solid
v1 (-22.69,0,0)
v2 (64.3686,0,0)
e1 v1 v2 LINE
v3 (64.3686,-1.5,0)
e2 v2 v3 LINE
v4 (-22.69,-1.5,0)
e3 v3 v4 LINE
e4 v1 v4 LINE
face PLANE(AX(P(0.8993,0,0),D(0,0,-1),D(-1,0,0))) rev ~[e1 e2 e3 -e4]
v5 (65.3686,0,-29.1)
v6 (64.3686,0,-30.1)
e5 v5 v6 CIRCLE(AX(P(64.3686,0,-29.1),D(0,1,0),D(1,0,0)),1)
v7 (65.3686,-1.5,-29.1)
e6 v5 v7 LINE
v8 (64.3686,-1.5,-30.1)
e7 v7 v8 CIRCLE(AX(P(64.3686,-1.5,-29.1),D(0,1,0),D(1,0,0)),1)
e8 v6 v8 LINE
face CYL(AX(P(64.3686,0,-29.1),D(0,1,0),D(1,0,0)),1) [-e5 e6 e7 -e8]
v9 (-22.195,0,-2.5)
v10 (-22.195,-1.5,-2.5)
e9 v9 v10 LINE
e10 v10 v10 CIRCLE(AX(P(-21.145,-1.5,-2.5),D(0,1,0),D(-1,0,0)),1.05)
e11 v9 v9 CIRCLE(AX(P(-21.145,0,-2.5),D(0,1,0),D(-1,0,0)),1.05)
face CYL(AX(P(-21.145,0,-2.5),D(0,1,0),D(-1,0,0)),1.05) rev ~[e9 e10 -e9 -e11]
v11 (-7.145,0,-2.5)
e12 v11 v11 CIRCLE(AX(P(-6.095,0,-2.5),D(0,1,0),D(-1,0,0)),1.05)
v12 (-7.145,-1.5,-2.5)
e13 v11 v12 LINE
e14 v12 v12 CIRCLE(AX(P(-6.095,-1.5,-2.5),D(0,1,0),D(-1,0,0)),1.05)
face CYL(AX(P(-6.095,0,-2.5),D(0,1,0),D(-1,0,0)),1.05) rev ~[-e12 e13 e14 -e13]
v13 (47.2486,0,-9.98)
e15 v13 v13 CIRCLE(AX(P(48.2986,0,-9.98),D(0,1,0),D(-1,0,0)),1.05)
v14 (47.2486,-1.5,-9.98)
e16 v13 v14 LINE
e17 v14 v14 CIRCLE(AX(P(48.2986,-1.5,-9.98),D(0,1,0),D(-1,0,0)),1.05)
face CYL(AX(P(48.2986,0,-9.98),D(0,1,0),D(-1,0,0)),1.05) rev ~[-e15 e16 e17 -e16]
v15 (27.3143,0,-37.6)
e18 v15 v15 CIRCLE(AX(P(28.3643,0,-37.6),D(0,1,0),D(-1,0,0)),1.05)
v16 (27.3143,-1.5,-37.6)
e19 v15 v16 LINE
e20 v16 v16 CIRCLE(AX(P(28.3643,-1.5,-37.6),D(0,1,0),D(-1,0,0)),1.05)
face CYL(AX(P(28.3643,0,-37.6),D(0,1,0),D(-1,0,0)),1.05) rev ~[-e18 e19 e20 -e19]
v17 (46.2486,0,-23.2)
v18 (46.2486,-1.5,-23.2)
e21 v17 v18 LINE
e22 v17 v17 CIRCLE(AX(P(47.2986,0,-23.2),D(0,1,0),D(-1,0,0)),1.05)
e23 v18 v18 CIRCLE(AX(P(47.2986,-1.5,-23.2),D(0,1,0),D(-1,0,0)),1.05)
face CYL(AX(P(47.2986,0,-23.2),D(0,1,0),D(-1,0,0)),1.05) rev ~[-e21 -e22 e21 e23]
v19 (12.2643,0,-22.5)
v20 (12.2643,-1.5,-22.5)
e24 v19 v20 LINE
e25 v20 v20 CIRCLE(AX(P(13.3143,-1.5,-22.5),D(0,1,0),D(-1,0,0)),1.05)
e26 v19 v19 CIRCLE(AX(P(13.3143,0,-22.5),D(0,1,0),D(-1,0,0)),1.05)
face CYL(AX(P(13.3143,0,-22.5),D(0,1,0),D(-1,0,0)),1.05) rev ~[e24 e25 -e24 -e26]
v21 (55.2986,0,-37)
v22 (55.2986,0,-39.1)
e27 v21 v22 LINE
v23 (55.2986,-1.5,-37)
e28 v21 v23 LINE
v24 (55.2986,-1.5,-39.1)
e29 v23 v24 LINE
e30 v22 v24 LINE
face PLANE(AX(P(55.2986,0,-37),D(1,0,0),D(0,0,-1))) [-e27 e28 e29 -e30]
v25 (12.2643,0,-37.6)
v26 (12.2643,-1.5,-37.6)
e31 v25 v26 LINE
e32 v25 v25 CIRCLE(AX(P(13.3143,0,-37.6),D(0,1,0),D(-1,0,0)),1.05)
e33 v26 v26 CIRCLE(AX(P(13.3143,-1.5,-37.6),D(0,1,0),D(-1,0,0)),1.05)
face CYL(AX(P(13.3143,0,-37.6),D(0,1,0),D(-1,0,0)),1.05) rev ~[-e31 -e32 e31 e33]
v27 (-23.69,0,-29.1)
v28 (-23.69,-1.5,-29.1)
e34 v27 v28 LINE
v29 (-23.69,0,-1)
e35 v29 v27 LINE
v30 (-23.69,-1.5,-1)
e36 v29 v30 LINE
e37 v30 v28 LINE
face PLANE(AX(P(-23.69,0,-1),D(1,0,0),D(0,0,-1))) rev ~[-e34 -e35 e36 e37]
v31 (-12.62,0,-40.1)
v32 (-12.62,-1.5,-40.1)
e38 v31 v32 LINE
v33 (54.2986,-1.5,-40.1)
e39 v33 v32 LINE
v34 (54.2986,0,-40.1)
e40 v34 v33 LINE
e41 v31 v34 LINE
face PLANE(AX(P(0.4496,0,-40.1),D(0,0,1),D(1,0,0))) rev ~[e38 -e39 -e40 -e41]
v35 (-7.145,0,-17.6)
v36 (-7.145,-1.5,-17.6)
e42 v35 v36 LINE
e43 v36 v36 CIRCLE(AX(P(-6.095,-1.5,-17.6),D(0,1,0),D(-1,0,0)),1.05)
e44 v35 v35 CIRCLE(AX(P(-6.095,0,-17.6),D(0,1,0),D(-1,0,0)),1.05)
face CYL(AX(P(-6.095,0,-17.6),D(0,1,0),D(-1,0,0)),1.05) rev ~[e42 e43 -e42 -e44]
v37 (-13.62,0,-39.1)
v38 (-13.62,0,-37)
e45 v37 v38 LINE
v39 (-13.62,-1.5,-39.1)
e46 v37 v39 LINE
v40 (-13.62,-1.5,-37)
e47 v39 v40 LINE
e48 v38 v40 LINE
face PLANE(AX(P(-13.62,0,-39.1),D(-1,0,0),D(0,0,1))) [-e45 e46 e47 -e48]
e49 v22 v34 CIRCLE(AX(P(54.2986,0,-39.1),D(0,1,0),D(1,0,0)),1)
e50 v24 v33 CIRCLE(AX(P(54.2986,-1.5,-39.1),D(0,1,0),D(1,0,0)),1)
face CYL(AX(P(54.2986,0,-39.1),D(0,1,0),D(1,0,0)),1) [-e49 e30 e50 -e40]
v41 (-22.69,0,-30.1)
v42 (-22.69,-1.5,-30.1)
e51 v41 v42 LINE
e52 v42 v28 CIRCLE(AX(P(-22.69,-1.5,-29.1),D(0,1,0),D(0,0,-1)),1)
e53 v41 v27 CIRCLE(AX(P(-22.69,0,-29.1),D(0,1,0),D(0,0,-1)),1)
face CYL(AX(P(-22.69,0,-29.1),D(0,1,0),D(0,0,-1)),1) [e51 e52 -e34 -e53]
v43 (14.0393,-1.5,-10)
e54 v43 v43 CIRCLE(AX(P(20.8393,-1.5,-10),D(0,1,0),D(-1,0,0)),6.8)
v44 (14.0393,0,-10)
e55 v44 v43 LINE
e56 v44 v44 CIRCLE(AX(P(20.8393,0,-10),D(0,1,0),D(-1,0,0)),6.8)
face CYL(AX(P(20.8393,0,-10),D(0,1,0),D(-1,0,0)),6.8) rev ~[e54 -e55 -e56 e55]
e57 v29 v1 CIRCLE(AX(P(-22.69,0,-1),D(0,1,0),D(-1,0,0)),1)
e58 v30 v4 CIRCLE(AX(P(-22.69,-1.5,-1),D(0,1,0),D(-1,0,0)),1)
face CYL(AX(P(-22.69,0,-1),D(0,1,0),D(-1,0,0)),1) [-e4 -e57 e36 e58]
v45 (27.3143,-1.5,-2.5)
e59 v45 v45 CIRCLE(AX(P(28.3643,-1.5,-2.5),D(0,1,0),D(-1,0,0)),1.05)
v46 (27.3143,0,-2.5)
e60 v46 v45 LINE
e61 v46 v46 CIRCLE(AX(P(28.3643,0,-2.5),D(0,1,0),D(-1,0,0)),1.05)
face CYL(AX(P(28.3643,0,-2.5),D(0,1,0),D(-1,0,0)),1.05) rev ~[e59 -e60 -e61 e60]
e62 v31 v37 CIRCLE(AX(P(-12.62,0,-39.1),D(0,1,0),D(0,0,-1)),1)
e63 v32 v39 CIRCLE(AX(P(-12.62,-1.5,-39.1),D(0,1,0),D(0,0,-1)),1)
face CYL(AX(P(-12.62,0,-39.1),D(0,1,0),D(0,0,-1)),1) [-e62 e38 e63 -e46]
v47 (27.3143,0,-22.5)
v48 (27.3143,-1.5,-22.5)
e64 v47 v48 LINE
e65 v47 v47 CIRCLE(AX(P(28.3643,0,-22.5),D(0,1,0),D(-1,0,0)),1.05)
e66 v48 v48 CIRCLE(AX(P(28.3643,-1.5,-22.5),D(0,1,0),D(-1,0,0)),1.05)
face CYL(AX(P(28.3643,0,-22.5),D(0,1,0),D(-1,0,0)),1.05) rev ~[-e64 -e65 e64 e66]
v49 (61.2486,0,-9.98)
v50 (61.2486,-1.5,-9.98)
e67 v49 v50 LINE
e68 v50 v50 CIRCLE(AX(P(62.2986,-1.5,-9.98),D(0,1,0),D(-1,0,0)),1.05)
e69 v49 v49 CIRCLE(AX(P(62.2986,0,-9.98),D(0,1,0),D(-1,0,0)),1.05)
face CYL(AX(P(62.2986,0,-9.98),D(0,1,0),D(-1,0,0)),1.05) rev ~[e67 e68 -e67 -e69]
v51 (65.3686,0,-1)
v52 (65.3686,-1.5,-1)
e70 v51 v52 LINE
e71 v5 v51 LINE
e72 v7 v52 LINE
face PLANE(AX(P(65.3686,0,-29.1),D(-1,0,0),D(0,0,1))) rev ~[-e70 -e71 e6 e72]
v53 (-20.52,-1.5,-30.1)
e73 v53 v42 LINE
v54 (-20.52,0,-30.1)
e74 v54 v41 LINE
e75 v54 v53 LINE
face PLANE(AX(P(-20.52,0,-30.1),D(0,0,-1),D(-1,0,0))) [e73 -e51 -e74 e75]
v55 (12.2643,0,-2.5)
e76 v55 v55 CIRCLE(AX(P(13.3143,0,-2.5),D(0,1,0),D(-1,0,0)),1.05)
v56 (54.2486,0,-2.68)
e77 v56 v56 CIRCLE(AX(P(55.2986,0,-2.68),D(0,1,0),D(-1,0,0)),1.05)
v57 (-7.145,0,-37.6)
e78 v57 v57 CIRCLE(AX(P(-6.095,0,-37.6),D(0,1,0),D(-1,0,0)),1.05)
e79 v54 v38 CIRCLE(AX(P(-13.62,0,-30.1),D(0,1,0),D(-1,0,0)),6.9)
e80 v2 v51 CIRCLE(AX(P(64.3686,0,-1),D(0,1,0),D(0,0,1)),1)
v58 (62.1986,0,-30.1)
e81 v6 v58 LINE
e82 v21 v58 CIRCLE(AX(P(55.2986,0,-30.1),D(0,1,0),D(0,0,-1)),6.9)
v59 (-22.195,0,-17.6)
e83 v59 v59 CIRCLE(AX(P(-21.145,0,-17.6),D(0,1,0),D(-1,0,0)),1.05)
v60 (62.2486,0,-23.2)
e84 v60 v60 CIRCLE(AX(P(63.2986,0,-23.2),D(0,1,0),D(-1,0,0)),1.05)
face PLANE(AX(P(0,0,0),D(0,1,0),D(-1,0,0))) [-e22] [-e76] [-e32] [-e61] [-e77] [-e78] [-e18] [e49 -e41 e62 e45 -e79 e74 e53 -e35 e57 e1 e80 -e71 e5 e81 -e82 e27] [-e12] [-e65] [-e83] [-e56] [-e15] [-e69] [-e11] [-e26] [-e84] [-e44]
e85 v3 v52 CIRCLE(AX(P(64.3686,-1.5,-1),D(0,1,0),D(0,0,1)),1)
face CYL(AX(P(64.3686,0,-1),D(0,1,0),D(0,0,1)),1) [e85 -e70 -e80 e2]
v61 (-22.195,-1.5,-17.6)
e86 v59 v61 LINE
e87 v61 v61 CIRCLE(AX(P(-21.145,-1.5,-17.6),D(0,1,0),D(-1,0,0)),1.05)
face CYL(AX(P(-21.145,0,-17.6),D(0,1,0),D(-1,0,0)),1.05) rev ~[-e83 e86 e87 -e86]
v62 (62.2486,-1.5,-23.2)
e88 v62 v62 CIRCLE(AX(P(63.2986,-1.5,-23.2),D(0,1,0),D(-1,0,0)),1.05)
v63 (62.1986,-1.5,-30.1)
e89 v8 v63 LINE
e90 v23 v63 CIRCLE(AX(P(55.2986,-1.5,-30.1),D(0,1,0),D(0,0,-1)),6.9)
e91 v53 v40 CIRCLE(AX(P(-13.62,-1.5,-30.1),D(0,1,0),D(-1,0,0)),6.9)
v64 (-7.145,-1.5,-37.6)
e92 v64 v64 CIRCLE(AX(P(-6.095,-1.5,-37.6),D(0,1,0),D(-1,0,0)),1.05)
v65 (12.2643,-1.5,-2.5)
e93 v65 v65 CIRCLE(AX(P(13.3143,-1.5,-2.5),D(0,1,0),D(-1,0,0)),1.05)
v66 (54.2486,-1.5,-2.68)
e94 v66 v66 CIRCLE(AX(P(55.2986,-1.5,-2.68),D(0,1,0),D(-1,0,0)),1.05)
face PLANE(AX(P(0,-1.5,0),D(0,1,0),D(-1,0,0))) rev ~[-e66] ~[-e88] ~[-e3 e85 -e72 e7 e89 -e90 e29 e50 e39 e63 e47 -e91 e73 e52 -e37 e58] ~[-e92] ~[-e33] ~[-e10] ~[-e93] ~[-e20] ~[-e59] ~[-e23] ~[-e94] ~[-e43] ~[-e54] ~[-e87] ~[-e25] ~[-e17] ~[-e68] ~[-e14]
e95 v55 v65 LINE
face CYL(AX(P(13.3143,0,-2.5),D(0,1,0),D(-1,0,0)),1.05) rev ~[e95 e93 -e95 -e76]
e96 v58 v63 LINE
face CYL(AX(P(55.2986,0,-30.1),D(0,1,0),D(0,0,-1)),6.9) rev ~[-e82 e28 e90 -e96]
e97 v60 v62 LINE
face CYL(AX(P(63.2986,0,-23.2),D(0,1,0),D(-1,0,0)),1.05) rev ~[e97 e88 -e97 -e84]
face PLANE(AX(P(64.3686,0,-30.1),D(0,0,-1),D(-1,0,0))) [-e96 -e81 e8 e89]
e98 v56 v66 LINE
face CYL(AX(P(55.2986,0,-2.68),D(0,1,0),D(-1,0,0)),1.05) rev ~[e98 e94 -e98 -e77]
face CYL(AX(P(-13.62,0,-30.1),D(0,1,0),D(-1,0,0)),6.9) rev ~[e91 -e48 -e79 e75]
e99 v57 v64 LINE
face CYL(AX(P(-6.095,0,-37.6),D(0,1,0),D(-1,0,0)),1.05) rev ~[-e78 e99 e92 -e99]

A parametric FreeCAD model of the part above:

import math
import FreeCAD as App
import Part
import Sketcher

V = App.Vector

doc = App.newDocument("Part")
body = doc.addObject("PartDesign::Body", "Body")

# Sketch on XZ plane
sketch1 = doc.addObject("Sketcher::SketchObject", "Sketch")
body.addObject(sketch1)
sketch1.AttachmentSupport = (doc.XZ_Plane, [""])
sketch1.MapMode = "FlatFace"
sketch1.addGeometry(Part.ArcOfCircle(Part.Circle(V(-12.6, -39.1, 0), V(0, 0, 1), 1), math.radians(180), math.radians(270)), False)
sketch1.addGeometry(Part.LineSegment(V(-13.6, -39.1, 0), V(-13.6, -37, 0)), False)
sketch1.addGeometry(Part.ArcOfCircle(Part.Circle(V(-13.6, -30.1, 0), V(0, 0, 1), 6.9), math.radians(-90), math.radians(180)), False)
sketch1.addGeometry(Part.LineSegment(V(-20.5, -30.1, 0), V(-22.7, -30.1, 0)), False)
sketch1.addGeometry(Part.ArcOfCircle(Part.Circle(V(-22.7, -29.1, 0), V(0, 0, 1), 1), math.radians(180), math.radians(270)), False)
sketch1.addGeometry(Part.LineSegment(V(-23.7, -29.1, 0), V(-23.7, -1, 0)), False)
sketch1.addGeometry(Part.ArcOfCircle(Part.Circle(V(-22.7, -1, 0), V(0, 0, 1), 1), math.radians(90), math.radians(180)), False)
sketch1.addGeometry(Part.LineSegment(V(-22.7, 0, 0), V(64.4, 0, 0)), False)
sketch1.addGeometry(Part.ArcOfCircle(Part.Circle(V(64.4, -1, 0), V(0, 0, 1), 1), math.radians(0), math.radians(90)), False)
sketch1.addGeometry(Part.LineSegment(V(65.4, -1, 0), V(65.4, -29.1, 0)), False)
sketch1.addGeometry(Part.ArcOfCircle(Part.Circle(V(64.4, -29.1, 0), V(0, 0, 1), 1), math.radians(-90), math.radians(0)), False)
sketch1.addGeometry(Part.LineSegment(V(64.4, -30.1, 0), V(62.2, -30.1, 0)), False)
sketch1.addGeometry(Part.ArcOfCircle(Part.Circle(V(55.3, -30.1, 0), V(0, 0, 1), 6.9), math.radians(0), math.radians(270)), False)
sketch1.addGeometry(Part.LineSegment(V(55.3, -37, 0), V(55.3, -39.1, 0)), False)
sketch1.addGeometry(Part.ArcOfCircle(Part.Circle(V(54.3, -39.1, 0), V(0, 0, 1), 1), math.radians(-90), math.radians(0)), False)
sketch1.addGeometry(Part.LineSegment(V(54.3, -40.1, 0), V(-12.6, -40.1, 0)), False)
sketch1.addGeometry(Part.Circle(V(13.3, -2.5, 0), V(0, 0, 1), 1.1), False)
sketch1.addGeometry(Part.Circle(V(28.4, -37.6, 0), V(0, 0, 1), 1.1), False)
sketch1.addGeometry(Part.Circle(V(28.4, -22.5, 0), V(0, 0, 1), 1.1), False)
sketch1.addGeometry(Part.Circle(V(13.3, -37.6, 0), V(0, 0, 1), 1.1), False)
sketch1.addGeometry(Part.Circle(V(13.3, -22.5, 0), V(0, 0, 1), 1.1), False)
sketch1.addGeometry(Part.Circle(V(28.4, -2.5, 0), V(0, 0, 1), 1.1), False)
sketch1.addGeometry(Part.Circle(V(20.8, -10, 0), V(0, 0, 1), 6.8), False)
sketch1.addGeometry(Part.Circle(V(-21.1, -2.5, 0), V(0, 0, 1), 1.1), False)
sketch1.addGeometry(Part.Circle(V(-6.1, -37.6, 0), V(0, 0, 1), 1.1), False)
sketch1.addGeometry(Part.Circle(V(-6.1, -17.6, 0), V(0, 0, 1), 1.1), False)
sketch1.addGeometry(Part.Circle(V(-21.1, -17.6, 0), V(0, 0, 1), 1.1), False)
sketch1.addGeometry(Part.Circle(V(-6.1, -2.5, 0), V(0, 0, 1), 1.1), False)
sketch1.addGeometry(Part.Circle(V(55.3, -2.7, 0), V(0, 0, 1), 1.1), False)
sketch1.addGeometry(Part.Circle(V(63.3, -23.2, 0), V(0, 0, 1), 1.1), False)
sketch1.addGeometry(Part.Circle(V(47.3, -23.2, 0), V(0, 0, 1), 1.1), False)
sketch1.addGeometry(Part.Circle(V(62.3, -10, 0), V(0, 0, 1), 1.1), False)
sketch1.addGeometry(Part.Circle(V(48.3, -10, 0), V(0, 0, 1), 1.1), False)
sketch1.addConstraint(Sketcher.Constraint("Tangent", 0, 1, 1, 1))
sketch1.addConstraint(Sketcher.Constraint("Coincident", 1, 2, 2, 1))
sketch1.addConstraint(Sketcher.Constraint("Coincident", 2, 2, 3, 1))
sketch1.addConstraint(Sketcher.Constraint("Tangent", 3, 2, 4, 2))
sketch1.addConstraint(Sketcher.Constraint("Tangent", 4, 1, 5, 1))
sketch1.addConstraint(Sketcher.Constraint("Tangent", 5, 2, 6, 2))
sketch1.addConstraint(Sketcher.Constraint("Tangent", 6, 1, 7, 1))
sketch1.addConstraint(Sketcher.Constraint("Tangent", 7, 2, 8, 2))
sketch1.addConstraint(Sketcher.Constraint("Tangent", 8, 1, 9, 1))
sketch1.addConstraint(Sketcher.Constraint("Tangent", 9, 2, 10, 2))
sketch1.addConstraint(Sketcher.Constraint("Tangent", 10, 1, 11, 1))
sketch1.addConstraint(Sketcher.Constraint("Coincident", 11, 2, 12, 1))
sketch1.addConstraint(Sketcher.Constraint("Coincident", 12, 2, 13, 1))
sketch1.addConstraint(Sketcher.Constraint("Tangent", 13, 2, 14, 2))
sketch1.addConstraint(Sketcher.Constraint("Tangent", 14, 1, 15, 1))
sketch1.addConstraint(Sketcher.Constraint("Tangent", 15, 2, 0, 2))
sketch1.addConstraint(Sketcher.Constraint("Vertical", 1))
sketch1.addConstraint(Sketcher.Constraint("Horizontal", 3))
sketch1.addConstraint(Sketcher.Constraint("Vertical", 5))
sketch1.addConstraint(Sketcher.Constraint("Horizontal", 7))
sketch1.addConstraint(Sketcher.Constraint("Vertical", 9))
sketch1.addConstraint(Sketcher.Constraint("Horizontal", 11))
sketch1.addConstraint(Sketcher.Constraint("Vertical", 13))
sketch1.addConstraint(Sketcher.Constraint("Horizontal", 15))
sketch1.addConstraint(Sketcher.Constraint("Equal", 0, 4))
sketch1.addConstraint(Sketcher.Constraint("Equal", 4, 6))
sketch1.addConstraint(Sketcher.Constraint("Equal", 6, 8))
sketch1.addConstraint(Sketcher.Constraint("Equal", 8, 10))
sketch1.addConstraint(Sketcher.Constraint("Equal", 2, 12))
sketch1.addConstraint(Sketcher.Constraint("Equal", 10, 14))
sketch1.addConstraint(Sketcher.Constraint("Equal", 16, 17))
sketch1.addConstraint(Sketcher.Constraint("Equal", 17, 18))
sketch1.addConstraint(Sketcher.Constraint("Equal", 18, 19))
sketch1.addConstraint(Sketcher.Constraint("Equal", 19, 20))
sketch1.addConstraint(Sketcher.Constraint("Equal", 20, 21))
sketch1.addConstraint(Sketcher.Constraint("Equal", 21, 23))
sketch1.addConstraint(Sketcher.Constraint("Equal", 23, 24))
sketch1.addConstraint(Sketcher.Constraint("Equal", 24, 25))
sketch1.addConstraint(Sketcher.Constraint("Equal", 25, 26))
sketch1.addConstraint(Sketcher.Constraint("Equal", 26, 27))
sketch1.addConstraint(Sketcher.Constraint("Equal", 27, 28))
sketch1.addConstraint(Sketcher.Constraint("Equal", 28, 29))
sketch1.addConstraint(Sketcher.Constraint("Equal", 29, 30))
sketch1.addConstraint(Sketcher.Constraint("Equal", 30, 31))
sketch1.addConstraint(Sketcher.Constraint("Equal", 31, 32))
sketch1.addConstraint(Sketcher.Constraint("PointOnObject", 6, 1, -1))
sketch1.addConstraint(Sketcher.Constraint("Horizontal", 4, 3, 10, 3))
sketch1.addConstraint(Sketcher.Constraint("Horizontal", 2, 3, 12, 3))
sketch1.addConstraint(Sketcher.Constraint("Horizontal", 17, 3, 19, 3))
sketch1.addConstraint(Sketcher.Constraint("Horizontal", 18, 3, 20, 3))
sketch1.addConstraint(Sketcher.Constraint("Horizontal", 16, 3, 21, 3))
sketch1.addConstraint(Sketcher.Constraint("Horizontal", 21, 3, 23, 3))
sketch1.addConstraint(Sketcher.Constraint("Horizontal", 19, 3, 24, 3))
sketch1.addConstraint(Sketcher.Constraint("Horizontal", 25, 3, 26, 3))
sketch1.addConstraint(Sketcher.Constraint("Horizontal", 23, 3, 27, 3))
sketch1.addConstraint(Sketcher.Constraint("Horizontal", 29, 3, 30, 3))
sketch1.addConstraint(Sketcher.Constraint("Horizontal", 31, 3, 32, 3))
sketch1.addConstraint(Sketcher.Constraint("Horizontal", 12, 3, 2, 2))
sketch1.addConstraint(Sketcher.Constraint("Vertical", 17, 3, 18, 3))
sketch1.addConstraint(Sketcher.Constraint("Vertical", 16, 3, 19, 3))
sketch1.addConstraint(Sketcher.Constraint("Vertical", 19, 3, 20, 3))
sketch1.addConstraint(Sketcher.Constraint("Vertical", 18, 3, 21, 3))
sketch1.addConstraint(Sketcher.Constraint("Vertical", 24, 3, 25, 3))
sketch1.addConstraint(Sketcher.Constraint("Vertical", 23, 3, 26, 3))
sketch1.addConstraint(Sketcher.Constraint("Vertical", 25, 3, 27, 3))
sketch1.addConstraint(Sketcher.Constraint("Vertical", 12, 3, 28, 3))
sketch1.addConstraint(Sketcher.Constraint("Vertical", 2, 3, 0, 1))
sketch1.addConstraint(Sketcher.Constraint("Vertical", 28, 3, 12, 2))
sketch1.addConstraint(Sketcher.Constraint("Equal", 3, 11))
sketch1.addConstraint(Sketcher.Constraint("Radius", 0, 1.0))
sketch1.addConstraint(Sketcher.Constraint("Diameter", 16, 2.1))
sketch1.addConstraint(Sketcher.Constraint("Diameter", 22, 13.6))
sketch1.addConstraint(Sketcher.Constraint("Radius", 2, 6.9))
sketch1.addConstraint(Sketcher.Constraint("DistanceY", 1, 1, 1, 2, 2.1))
sketch1.addConstraint(Sketcher.Constraint("DistanceY", 5, 1, 5, 2, 28.1))
sketch1.addConstraint(Sketcher.Constraint("DistanceY", 22, 3, -1, 1, 10.0))
sketch1.addConstraint(Sketcher.Constraint("DistanceY", 18, 3, 16, 3, 20.0))
sketch1.addConstraint(Sketcher.Constraint("DistanceY", 24, 3, 25, 3, 20.0))
sketch1.addConstraint(Sketcher.Constraint("DistanceX", 12, 3, 29, 3, 8.0))
sketch1.addConstraint(Sketcher.Constraint("DistanceX", 30, 3, 12, 3, 8.0))
sketch1.addConstraint(Sketcher.Constraint("DistanceX", 28, 3, 31, 3, 7.0))
sketch1.addConstraint(Sketcher.Constraint("DistanceX", 32, 3, 28, 3, 7.0))
sketch1.addConstraint(Sketcher.Constraint("DistanceX", 3, 2, 3, 1, 2.17))
sketch1.addConstraint(Sketcher.Constraint("DistanceY", 16, 3, -1, 1, 2.5))
sketch1.addConstraint(Sketcher.Constraint("DistanceY", 17, 3, -1, 1, 37.6))
sketch1.addConstraint(Sketcher.Constraint("DistanceY", 29, 3, -1, 1, 23.2))
sketch1.addConstraint(Sketcher.Constraint("DistanceY", 31, 3, 28, 3, 7.3))
sketch1.addConstraint(Sketcher.Constraint("DistanceX", 0, 3, -1, 1, 12.62))
sketch1.addConstraint(Sketcher.Constraint("DistanceY", 28, 3, -1, 1, 2.68))
sketch1.addConstraint(Sketcher.Constraint("DistanceX", 16, 3, 17, 3, 15.05))
sketch1.addConstraint(Sketcher.Constraint("DistanceX", 23, 3, 25, 3, 15.05))
sketch1.addConstraint(Sketcher.Constraint("DistanceX", 7, 1, 7, 2, 87.0586))
sketch1.addConstraint(Sketcher.Constraint("DistanceX", 23, 3, -1, 1, 21.145))
sketch1.addConstraint(Sketcher.Constraint("DistanceX", 22, 3, 21, 3, 7.525))
sketch1.addConstraint(Sketcher.Constraint("DistanceX", -1, 1, 16, 3, 13.3143))
pad1 = doc.addObject("PartDesign::Pad", "Pad")
body.addObject(pad1)
pad1.Profile = sketch1
pad1.Length = 1.5

doc.recompute()
